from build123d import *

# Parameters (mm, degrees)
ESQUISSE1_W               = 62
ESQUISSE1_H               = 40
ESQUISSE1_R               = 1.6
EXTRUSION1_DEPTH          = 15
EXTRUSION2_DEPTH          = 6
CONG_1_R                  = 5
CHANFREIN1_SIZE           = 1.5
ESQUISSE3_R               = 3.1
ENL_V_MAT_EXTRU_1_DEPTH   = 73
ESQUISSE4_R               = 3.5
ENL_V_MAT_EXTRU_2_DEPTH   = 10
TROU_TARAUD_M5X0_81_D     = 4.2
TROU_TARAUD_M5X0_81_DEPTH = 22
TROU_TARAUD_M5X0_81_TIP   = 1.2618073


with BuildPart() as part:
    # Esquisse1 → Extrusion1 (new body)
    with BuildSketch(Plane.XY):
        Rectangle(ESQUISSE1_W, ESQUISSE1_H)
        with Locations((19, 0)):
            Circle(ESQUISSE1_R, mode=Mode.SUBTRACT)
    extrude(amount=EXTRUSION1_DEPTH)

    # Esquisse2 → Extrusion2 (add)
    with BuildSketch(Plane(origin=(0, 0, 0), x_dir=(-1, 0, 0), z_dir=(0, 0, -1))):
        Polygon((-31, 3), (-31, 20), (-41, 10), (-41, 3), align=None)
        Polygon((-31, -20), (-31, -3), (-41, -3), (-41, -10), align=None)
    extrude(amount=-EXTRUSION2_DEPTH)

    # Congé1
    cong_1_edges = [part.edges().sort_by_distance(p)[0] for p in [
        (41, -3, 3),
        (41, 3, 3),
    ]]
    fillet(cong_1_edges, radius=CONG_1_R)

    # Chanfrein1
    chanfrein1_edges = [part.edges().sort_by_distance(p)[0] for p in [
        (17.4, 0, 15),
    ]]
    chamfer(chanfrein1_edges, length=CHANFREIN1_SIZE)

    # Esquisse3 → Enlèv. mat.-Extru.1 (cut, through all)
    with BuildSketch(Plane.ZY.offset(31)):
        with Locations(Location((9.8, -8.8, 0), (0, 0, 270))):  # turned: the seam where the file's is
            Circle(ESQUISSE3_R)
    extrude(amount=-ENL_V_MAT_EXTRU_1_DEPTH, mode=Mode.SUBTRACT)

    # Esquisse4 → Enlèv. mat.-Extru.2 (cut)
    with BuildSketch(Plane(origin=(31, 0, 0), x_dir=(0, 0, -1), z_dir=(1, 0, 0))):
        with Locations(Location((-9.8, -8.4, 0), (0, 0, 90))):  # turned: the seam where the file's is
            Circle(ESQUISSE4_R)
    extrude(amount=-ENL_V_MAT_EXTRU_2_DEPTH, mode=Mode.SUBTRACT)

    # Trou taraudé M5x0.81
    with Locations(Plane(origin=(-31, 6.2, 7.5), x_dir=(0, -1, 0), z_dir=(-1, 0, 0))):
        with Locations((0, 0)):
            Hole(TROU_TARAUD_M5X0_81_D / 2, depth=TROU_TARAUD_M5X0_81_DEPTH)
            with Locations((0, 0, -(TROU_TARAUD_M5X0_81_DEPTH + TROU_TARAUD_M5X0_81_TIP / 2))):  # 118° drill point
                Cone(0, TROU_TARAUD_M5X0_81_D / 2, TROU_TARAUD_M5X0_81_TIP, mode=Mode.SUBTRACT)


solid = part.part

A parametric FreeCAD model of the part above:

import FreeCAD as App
import Part
import Sketcher
from FreeCAD import Vector


def edges_at(feature, points):
    """Names of the edges that pass closest to the given points."""
    edges = feature.Shape.Edges
    near = lambda p: min(range(len(edges)), key=lambda i: edges[i].distToShape(Part.Vertex(*p))[0])
    return sorted({f"Edge{near(p) + 1}" for p in points})


def add_polygon(sketch, points):
    """Adds a closed chain of lines whose ends are joined by coincident constraints."""
    first, n = sketch.GeometryCount, len(points)
    for a, b in zip(points, points[1:] + points[:1]):
        sketch.addGeometry(Part.LineSegment(App.Vector(*a, 0), App.Vector(*b, 0)), False)
    for i in range(n):
        sketch.addConstraint(Sketcher.Constraint("Coincident", first + i, 2, first + (i + 1) % n, 1))

doc = App.newDocument("Part")
body = doc.addObject("PartDesign::Body", "Body")

sketch1 = body.newObject("Sketcher::SketchObject", "Sketch")
sketch1.AttachmentSupport = (doc.getObject("XY_Plane"), [""])
sketch1.MapMode = "FlatFace"
add_polygon(sketch1, [(-31, 20), (-31, -20), (31, -20), (31, 20)])
sketch1.addGeometry(Part.Circle(Vector(19, 0, 0), Vector(0, 0, 1), 1.6), False)
sketch1.addConstraint(Sketcher.Constraint("Vertical", 0))
sketch1.addConstraint(Sketcher.Constraint("Horizontal", 1))
sketch1.addConstraint(Sketcher.Constraint("Vertical", 2))
sketch1.addConstraint(Sketcher.Constraint("Horizontal", 3))
sketch1.addConstraint(Sketcher.Constraint("Symmetric", 0, 2, 2, 2, -1, 1))
sketch1.addConstraint(Sketcher.Constraint("PointOnObject", 4, 3, -1))
sketch1.addConstraint(Sketcher.Constraint("Diameter", 4, 3.2))
sketch1.addConstraint(Sketcher.Constraint("DistanceX", 1, 1, 1, 2, 62.0))
sketch1.addConstraint(Sketcher.Constraint("DistanceY", 0, 2, 0, 1, 40.0))
sketch1.addConstraint(Sketcher.Constraint("DistanceX", -1, 1, 4, 3, 19.0))
pad1 = body.newObject("PartDesign::Pad", "Pad")
pad1.Profile = sketch1
pad1.Length = 15

sketch2 = body.newObject("Sketcher::SketchObject", "Sketch001")
sketch2.AttachmentSupport = (doc.getObject("XY_Plane"), [""])
sketch2.MapMode = "FlatFace"
add_polygon(sketch2, [(31, 3), (31, 20), (41, 10), (41, 3)])
add_polygon(sketch2, [(31, -20), (31, -3), (41, -3), (41, -10)])
sketch2.addConstraint(Sketcher.Constraint("Vertical", 0))
sketch2.addConstraint(Sketcher.Constraint("Vertical", 2))
sketch2.addConstraint(Sketcher.Constraint("Horizontal", 3))
sketch2.addConstraint(Sketcher.Constraint("Vertical", 4))
sketch2.addConstraint(Sketcher.Constraint("Horizontal", 5))
sketch2.addConstraint(Sketcher.Constraint("Vertical", 6))
sketch2.addConstraint(Sketcher.Constraint("Symmetric", 3, 2, 4, 2, -1))
sketch2.addConstraint(Sketcher.Constraint("Symmetric", 1, 2, 6, 2, -1))
sketch2.addConstraint(Sketcher.Constraint("Perpendicular", 1, 7))
sketch2.addConstraint(Sketcher.Constraint("Equal", 0, 4))
sketch2.addConstraint(Sketcher.Constraint("DistanceX", 3, 2, 3, 1, 10.0))
sketch2.addConstraint(Sketcher.Constraint("DistanceY", 0, 1, 0, 2, 17.0))
sketch2.addConstraint(Sketcher.Constraint("DistanceX", -1, 1, 0, 2, 31.0))
sketch2.addConstraint(Sketcher.Constraint("DistanceY", -1, 1, 0, 2, 20.0))
pad2 = body.newObject("PartDesign::Pad", "Pad001")
pad2.Profile = sketch2
pad2.Length = 6
doc.recompute()

fillet = body.newObject("PartDesign::Fillet", "Fillet")
fillet.Base = (pad2, edges_at(pad2, [(41, -3, 3), (41, 3, 3)]))
fillet.Radius = 5
doc.recompute()

chamfer = body.newObject("PartDesign::Chamfer", "Chamfer")
chamfer.Base = (fillet, edges_at(fillet, [(17.4, 0, 15)]))
chamfer.Size = 1.5

sketch3 = body.newObject("Sketcher::SketchObject", "Sketch002")
sketch3.AttachmentSupport = (doc.getObject("YZ_Plane"), [""])
sketch3.MapMode = "FlatFace"
sketch3.AttachmentOffset = App.Placement(Vector(0, 0, -31), App.Rotation())
sketch3.addGeometry(Part.Circle(Vector(-8.8, 9.8, 0), Vector(0, 0, 1), 3.1), False)
sketch3.addConstraint(Sketcher.Constraint("Diameter", 0, 6.2))
sketch3.addConstraint(Sketcher.Constraint("DistanceX", 0, 3, -1, 1, 8.8))
sketch3.addConstraint(Sketcher.Constraint("DistanceY", -1, 1, 0, 3, 9.8))
pocket1 = body.newObject("PartDesign::Pocket", "Pocket")
pocket1.Profile = sketch3
pocket1.Type = "ThroughAll"
pocket1.Reversed = True

sketch4 = body.newObject("Sketcher::SketchObject", "Sketch003")
sketch4.AttachmentSupport = (doc.getObject("YZ_Plane"), [""])
sketch4.MapMode = "FlatFace"
sketch4.AttachmentOffset = App.Placement(Vector(0, 0, 31), App.Rotation())
sketch4.addGeometry(Part.Circle(Vector(-8.4, 9.8, 0), Vector(0, 0, 1), 3.5), False)
sketch4.addConstraint(Sketcher.Constraint("Diameter", 0, 7.0))
sketch4.addConstraint(Sketcher.Constraint("DistanceX", 0, 3, -1, 1, 8.4))
sketch4.addConstraint(Sketcher.Constraint("DistanceY", -1, 1, 0, 3, 9.8))
pocket2 = body.newObject("PartDesign::Pocket", "Pocket001")
pocket2.Profile = sketch4
pocket2.Length = 10

sketch5 = body.newObject("Sketcher::SketchObject", "Sketch004")
sketch5.AttachmentSupport = (doc.getObject("YZ_Plane"), [""])
sketch5.MapMode = "FlatFace"
sketch5.AttachmentOffset = App.Placement(Vector(0, 0, -31), App.Rotation())
sketch5.addGeometry(Part.Circle(Vector(6.2, 7.5, 0), Vector(0, 0, 1), 2.1), False)
sketch5.addConstraint(Sketcher.Constraint("Diameter", 0, 4.2))
sketch5.addConstraint(Sketcher.Constraint("DistanceX", -1, 1, 0, 3, 6.2))
sketch5.addConstraint(Sketcher.Constraint("DistanceY", -1, 1, 0, 3, 7.5))
doc.recompute()
hole = body.newObject("PartDesign::Hole", "Hole")
hole.Profile = sketch5
hole.ThreadType = "None"
hole.Diameter = 4.2
hole.DepthType = "Dimension"
hole.Depth = 22
hole.DrillPoint = "Angled"
hole.DrillPointAngle = 118
hole.Reversed = True

doc.recompute()
